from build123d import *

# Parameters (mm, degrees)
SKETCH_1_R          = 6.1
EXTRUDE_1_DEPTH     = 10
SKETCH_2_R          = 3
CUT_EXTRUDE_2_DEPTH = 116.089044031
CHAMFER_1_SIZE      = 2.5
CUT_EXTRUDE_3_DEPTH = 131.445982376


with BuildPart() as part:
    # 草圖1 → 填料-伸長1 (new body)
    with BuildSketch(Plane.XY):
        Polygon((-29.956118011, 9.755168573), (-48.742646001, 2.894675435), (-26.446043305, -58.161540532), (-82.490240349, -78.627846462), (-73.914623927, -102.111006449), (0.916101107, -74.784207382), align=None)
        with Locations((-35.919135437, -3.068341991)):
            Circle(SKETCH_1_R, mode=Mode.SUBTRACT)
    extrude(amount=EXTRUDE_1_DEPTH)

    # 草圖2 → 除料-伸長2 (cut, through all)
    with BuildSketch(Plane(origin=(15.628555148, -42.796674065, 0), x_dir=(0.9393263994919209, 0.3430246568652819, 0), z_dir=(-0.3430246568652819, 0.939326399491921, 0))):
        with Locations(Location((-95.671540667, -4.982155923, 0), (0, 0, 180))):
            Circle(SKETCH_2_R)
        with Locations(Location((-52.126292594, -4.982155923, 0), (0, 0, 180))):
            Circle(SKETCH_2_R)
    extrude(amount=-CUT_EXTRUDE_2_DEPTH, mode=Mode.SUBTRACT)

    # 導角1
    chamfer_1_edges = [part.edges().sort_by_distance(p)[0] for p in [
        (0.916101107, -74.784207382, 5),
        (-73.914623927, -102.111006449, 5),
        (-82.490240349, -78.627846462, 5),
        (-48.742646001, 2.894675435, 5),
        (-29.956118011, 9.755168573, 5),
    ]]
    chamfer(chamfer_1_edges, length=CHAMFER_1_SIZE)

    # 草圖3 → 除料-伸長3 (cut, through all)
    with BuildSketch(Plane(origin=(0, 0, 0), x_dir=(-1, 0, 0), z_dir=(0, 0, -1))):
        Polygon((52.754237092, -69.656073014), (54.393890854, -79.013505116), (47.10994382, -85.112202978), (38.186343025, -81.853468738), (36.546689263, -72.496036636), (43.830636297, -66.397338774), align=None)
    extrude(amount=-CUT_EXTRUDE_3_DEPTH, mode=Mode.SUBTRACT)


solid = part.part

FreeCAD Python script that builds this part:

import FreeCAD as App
import Part
import Sketcher

V = App.Vector
Q = App.Units.Quantity


def edges_at(feature, points):
    """Names of the edges that pass closest to the given points."""
    edges = feature.Shape.Edges
    near = lambda p: min(range(len(edges)), key=lambda i: edges[i].distToShape(Part.Vertex(*p))[0])
    return sorted({f"Edge{near(p) + 1}" for p in points})


def add_polygon(sketch, points):
    """Adds a closed chain of lines whose ends are joined by coincident constraints."""
    first, n = sketch.GeometryCount, len(points)
    for a, b in zip(points, points[1:] + points[:1]):
        sketch.addGeometry(Part.LineSegment(App.Vector(*a, 0), App.Vector(*b, 0)), False)
    for i in range(n):
        sketch.addConstraint(Sketcher.Constraint("Coincident", first + i, 2, first + (i + 1) % n, 1))

doc = App.newDocument("Part")
body = doc.addObject("PartDesign::Body", "Body")

# Sketch on XY plane
sketch1 = body.newObject("Sketcher::SketchObject", "Sketch")
sketch1.AttachmentSupport = (doc.getObject("XY_Plane"), [""])
sketch1.MapMode = "FlatFace"
add_polygon(sketch1, [(-30, 10), (-49, 3), (-26, -58), (-82, -79), (-74, -102), (1, -75)])  # lines 0-5
sketch1.addGeometry(Part.Circle(V(-36, -3, 0), V(0, 0, 1), 6), False)  # 6
sketch1.addConstraint([
    Sketcher.Constraint("Perpendicular", 0, 1),
    Sketcher.Constraint("Perpendicular", 1, 2),
    Sketcher.Constraint("Perpendicular", 2, 3),
    Sketcher.Constraint("Perpendicular", 3, 4),
    Sketcher.Constraint("Perpendicular", 4, 5),
    Sketcher.Constraint("Diameter", 6, Q("12.2 mm")),
    Sketcher.Constraint("Distance", 0, Q("20 mm")),
    Sketcher.Constraint("Distance", 1, Q("65 mm")),
    Sketcher.Constraint("Distance", 3, Q("25 mm")),
    Sketcher.Constraint("DistanceX", -1, 1, 4, 2, Q("0.916101 mm")),
    Sketcher.Constraint("DistanceY", 1, 2, 6, 3, Q("55.093199 mm")),
    Sketcher.Constraint("DistanceY", 3, 2, 4, 2, Q("27.326799 mm")),
    Sketcher.Constraint("Distance", 2, Q("59.664241 mm")),
    Sketcher.Constraint("DistanceY", 6, 3, -1, 1, Q("3.068342 mm")),
    Sketcher.Constraint("DistanceX", 0, 2, 6, 3, Q("12.823511 mm")),
])
pad1 = body.newObject("PartDesign::Pad", "Pad")
pad1.Profile = sketch1
pad1.Length = 10

# Sketch on an angled plane
sketch2 = body.newObject("Sketcher::SketchObject", "Sketch001")
sketch2.Placement = App.Placement(V(15.628555, -42.796674, 0), App.Rotation(V(0.939326399, 0.343024657, 0), V(0, 0, -0.999999999), V(-0.343024657, 0.939326399, 0), "ZXY"))
sketch2.addGeometry([
    Part.Circle(V(-95.7, -5, 0), V(0, 0, 1), 3),
    Part.Circle(V(-52.1, -5, 0), V(0, 0, 1), 3),
], False)
sketch2.addConstraint([
    Sketcher.Constraint("Equal", 0, 1),
    Sketcher.Constraint("Horizontal", 0, 3, 1, 3),
    Sketcher.Constraint("Diameter", 0, Q("6 mm")),
    Sketcher.Constraint("DistanceX", 0, 3, -1, 1, Q("95.671541 mm")),
    Sketcher.Constraint("DistanceX", 0, 3, 1, 3, Q("43.545248 mm")),
    Sketcher.Constraint("DistanceY", 0, 3, -1, 1, Q("4.982156 mm")),
])
pocket1 = body.newObject("PartDesign::Pocket", "Pocket")
pocket1.Profile = sketch2
pocket1.Type = "ThroughAll"
doc.recompute()

chamfer = body.newObject("PartDesign::Chamfer", "Chamfer")
chamfer.Base = (pocket1, edges_at(pocket1, [
    (0.916, -74.784, 5),
    (-73.915, -102.111, 5),
    (-82.49, -78.628, 5),
    (-48.743, 2.895, 5),
    (-29.956, 9.755, 5),
]))
chamfer.Size = 2.5

# Sketch on XY plane
sketch3 = body.newObject("Sketcher::SketchObject", "Sketch002")
sketch3.AttachmentSupport = (doc.getObject("XY_Plane"), [""])
sketch3.MapMode = "FlatFace"
add_polygon(sketch3, [(-54, -79), (-53, -70), (-44, -66), (-37, -72), (-38, -82), (-47, -85)])  # lines 0-5
sketch3.addConstraint([
    Sketcher.Constraint("Parallel", 0, 3),
    Sketcher.Constraint("Parallel", 1, 4),
    Sketcher.Constraint("Parallel", 2, 5),
    Sketcher.Constraint("Equal", 0, 1),
    Sketcher.Constraint("Equal", 1, 2),
    Sketcher.Constraint("Equal", 2, 3),
    Sketcher.Constraint("Distance", 0, Q("9.5 mm")),
    Sketcher.Constraint("DistanceX", 0, 2, 1, 2, Q("8.923601 mm")),
    Sketcher.Constraint("DistanceX", 5, 2, 2, 2, Q("17.847202 mm")),
    Sketcher.Constraint("DistanceY", 1, 2, -1, 1, Q("66.397339 mm")),
    Sketcher.Constraint("DistanceX", 2, 2, -1, 1, Q("36.546689 mm")),
    Sketcher.Constraint("DistanceY", 3, 2, -1, 1, Q("81.853469 mm")),
])
pocket2 = body.newObject("PartDesign::Pocket", "Pocket001")
pocket2.Profile = sketch3
pocket2.Type = "ThroughAll"
pocket2.Reversed = True

doc.recompute()
